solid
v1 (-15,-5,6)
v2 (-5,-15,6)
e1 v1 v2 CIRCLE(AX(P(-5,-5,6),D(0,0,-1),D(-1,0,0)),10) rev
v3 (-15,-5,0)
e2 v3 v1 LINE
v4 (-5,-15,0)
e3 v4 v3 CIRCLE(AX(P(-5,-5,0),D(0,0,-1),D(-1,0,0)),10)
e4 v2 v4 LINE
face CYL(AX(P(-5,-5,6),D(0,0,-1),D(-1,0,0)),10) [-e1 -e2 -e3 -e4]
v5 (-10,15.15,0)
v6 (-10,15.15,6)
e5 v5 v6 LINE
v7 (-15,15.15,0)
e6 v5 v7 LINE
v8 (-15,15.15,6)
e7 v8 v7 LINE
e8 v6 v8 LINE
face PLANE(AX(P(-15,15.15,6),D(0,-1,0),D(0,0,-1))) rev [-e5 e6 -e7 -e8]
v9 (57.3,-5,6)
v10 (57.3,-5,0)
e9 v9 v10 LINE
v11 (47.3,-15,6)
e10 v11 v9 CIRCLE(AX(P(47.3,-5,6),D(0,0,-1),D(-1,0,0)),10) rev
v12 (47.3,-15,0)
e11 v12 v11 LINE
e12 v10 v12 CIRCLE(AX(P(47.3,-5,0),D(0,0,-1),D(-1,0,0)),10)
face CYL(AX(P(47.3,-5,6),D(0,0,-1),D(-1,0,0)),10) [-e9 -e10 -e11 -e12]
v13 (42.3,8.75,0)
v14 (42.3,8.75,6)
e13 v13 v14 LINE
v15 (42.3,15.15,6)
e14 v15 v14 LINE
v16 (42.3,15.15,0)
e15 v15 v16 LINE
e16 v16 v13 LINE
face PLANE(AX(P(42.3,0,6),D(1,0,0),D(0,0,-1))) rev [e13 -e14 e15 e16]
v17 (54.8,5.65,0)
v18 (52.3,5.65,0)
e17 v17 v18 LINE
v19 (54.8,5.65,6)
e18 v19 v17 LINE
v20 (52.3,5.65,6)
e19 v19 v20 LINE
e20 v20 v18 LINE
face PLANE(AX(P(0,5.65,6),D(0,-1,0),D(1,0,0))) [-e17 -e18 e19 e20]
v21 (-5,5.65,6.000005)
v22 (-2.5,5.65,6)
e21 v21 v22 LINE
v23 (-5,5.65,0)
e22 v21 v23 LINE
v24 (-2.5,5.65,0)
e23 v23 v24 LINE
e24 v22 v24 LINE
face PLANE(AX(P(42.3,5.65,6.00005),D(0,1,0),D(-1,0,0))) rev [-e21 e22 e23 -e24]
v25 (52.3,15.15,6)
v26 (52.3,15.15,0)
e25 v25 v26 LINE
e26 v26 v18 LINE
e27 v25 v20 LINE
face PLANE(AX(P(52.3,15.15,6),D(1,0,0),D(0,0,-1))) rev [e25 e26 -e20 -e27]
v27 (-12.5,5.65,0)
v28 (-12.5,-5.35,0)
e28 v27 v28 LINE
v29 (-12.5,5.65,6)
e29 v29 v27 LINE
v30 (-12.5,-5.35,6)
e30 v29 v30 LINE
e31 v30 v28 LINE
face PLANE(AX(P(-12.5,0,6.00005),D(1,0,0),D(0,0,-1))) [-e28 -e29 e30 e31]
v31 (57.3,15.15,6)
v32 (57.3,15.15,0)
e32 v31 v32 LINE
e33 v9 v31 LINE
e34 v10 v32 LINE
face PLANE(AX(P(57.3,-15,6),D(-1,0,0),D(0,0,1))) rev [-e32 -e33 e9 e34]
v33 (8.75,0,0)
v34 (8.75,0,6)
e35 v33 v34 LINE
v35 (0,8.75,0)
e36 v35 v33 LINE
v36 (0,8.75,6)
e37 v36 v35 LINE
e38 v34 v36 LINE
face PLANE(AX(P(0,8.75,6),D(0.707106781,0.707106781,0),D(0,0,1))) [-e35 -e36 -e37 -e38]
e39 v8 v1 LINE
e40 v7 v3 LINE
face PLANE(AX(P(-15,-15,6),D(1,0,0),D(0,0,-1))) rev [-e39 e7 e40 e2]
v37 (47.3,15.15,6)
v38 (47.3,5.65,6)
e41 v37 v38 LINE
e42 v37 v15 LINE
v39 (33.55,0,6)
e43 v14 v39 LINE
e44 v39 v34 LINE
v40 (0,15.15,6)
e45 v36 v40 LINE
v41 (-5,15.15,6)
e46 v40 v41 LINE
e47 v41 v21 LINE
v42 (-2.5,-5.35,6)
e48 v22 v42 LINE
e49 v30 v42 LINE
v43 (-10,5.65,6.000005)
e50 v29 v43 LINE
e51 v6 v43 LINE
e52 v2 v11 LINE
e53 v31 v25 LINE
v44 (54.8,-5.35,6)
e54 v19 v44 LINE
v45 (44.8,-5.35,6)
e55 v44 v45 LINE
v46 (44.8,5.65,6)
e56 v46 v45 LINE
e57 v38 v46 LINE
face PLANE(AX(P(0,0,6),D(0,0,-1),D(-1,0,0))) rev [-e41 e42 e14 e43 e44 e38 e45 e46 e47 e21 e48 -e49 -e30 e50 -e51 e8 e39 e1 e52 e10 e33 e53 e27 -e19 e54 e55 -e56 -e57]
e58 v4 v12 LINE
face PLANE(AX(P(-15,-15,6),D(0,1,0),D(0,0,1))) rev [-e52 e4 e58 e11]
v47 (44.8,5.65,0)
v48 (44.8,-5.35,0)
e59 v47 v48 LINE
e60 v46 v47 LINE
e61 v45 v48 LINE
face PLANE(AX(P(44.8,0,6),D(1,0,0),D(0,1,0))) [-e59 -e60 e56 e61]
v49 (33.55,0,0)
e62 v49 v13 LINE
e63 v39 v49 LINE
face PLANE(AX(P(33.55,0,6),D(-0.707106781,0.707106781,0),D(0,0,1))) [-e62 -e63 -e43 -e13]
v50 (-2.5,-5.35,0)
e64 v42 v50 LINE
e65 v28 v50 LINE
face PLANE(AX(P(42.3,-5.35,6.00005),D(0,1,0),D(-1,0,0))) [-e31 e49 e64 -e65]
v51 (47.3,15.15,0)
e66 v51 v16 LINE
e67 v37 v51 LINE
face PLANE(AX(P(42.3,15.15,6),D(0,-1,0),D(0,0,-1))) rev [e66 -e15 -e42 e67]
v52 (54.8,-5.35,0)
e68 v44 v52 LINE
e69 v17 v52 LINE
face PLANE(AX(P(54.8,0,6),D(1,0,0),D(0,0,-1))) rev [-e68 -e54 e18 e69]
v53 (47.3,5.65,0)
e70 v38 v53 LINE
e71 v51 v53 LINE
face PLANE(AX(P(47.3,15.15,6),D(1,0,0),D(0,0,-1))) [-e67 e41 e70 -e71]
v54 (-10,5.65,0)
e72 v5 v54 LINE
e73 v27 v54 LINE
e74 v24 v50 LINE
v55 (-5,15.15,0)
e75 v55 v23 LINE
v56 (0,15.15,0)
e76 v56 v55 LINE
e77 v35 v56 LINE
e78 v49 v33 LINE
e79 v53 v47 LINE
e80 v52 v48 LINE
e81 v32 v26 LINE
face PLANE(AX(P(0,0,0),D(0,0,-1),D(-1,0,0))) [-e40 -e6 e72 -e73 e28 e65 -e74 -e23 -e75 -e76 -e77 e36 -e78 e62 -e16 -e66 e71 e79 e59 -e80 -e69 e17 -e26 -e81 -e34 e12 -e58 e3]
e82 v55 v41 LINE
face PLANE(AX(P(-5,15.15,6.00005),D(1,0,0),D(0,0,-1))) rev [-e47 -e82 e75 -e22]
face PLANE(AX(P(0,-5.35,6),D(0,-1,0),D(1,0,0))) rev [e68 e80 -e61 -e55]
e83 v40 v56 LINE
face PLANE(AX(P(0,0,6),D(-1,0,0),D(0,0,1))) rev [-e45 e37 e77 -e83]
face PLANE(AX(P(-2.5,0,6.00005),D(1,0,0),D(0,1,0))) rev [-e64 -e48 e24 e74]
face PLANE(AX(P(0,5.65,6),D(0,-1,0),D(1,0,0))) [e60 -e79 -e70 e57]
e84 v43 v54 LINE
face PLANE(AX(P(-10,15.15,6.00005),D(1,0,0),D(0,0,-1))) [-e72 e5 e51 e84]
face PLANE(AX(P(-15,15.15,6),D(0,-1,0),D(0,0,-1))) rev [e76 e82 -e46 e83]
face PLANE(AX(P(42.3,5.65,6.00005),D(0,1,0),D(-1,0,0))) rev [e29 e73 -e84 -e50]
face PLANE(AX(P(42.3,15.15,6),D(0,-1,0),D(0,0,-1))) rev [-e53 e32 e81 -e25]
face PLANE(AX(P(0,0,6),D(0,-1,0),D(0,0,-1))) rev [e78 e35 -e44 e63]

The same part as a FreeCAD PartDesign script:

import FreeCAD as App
import Part
import Sketcher
from FreeCAD import Vector
Q = App.Units.Quantity


def edges_at(feature, points):
    """Names of the edges that pass closest to the given points."""
    edges = feature.Shape.Edges
    near = lambda p: min(range(len(edges)), key=lambda i: edges[i].distToShape(Part.Vertex(*p))[0])
    return sorted({f"Edge{near(p) + 1}" for p in points})

doc = App.newDocument("Part")
body = doc.addObject("PartDesign::Body", "Body")

# Sketch on XY plane
sketch1 = body.newObject("Sketcher::SketchObject", "Sketch")
sketch1.AttachmentSupport = (doc.getObject("XY_Plane"), [""])
sketch1.MapMode = "FlatFace"
sketch1.addGeometry(Part.LineSegment(Vector(42, 0, 0), Vector(0, 0, 0)), False)
sketch1.addGeometry(Part.LineSegment(Vector(0, 0, 0), Vector(0, 15, 0)), False)
sketch1.addGeometry(Part.LineSegment(Vector(0, 15, 0), Vector(-15, 15, 0)), False)
sketch1.addGeometry(Part.LineSegment(Vector(-15, 15, 0), Vector(-15, -15, 0)), False)
sketch1.addGeometry(Part.LineSegment(Vector(-15, -15, 0), Vector(57, -15, 0)), False)
sketch1.addGeometry(Part.LineSegment(Vector(57, -15, 0), Vector(57, 15, 0)), False)
sketch1.addGeometry(Part.LineSegment(Vector(57, 15, 0), Vector(42, 15, 0)), False)
sketch1.addGeometry(Part.LineSegment(Vector(42, 15, 0), Vector(42, 0, 0)), False)
sketch1.addConstraint(Sketcher.Constraint("Coincident", 0, 2, 1, 1))
sketch1.addConstraint(Sketcher.Constraint("Coincident", 1, 2, 2, 1))
sketch1.addConstraint(Sketcher.Constraint("Coincident", 2, 2, 3, 1))
sketch1.addConstraint(Sketcher.Constraint("Coincident", 3, 2, 4, 1))
sketch1.addConstraint(Sketcher.Constraint("Coincident", 4, 2, 5, 1))
sketch1.addConstraint(Sketcher.Constraint("Coincident", 5, 2, 6, 1))
sketch1.addConstraint(Sketcher.Constraint("Coincident", 6, 2, 7, 1))
sketch1.addConstraint(Sketcher.Constraint("Coincident", 7, 2, 0, 1))
sketch1.addConstraint(Sketcher.Constraint("Horizontal", 0))
sketch1.addConstraint(Sketcher.Constraint("Vertical", 1))
sketch1.addConstraint(Sketcher.Constraint("Horizontal", 2))
sketch1.addConstraint(Sketcher.Constraint("Vertical", 3))
sketch1.addConstraint(Sketcher.Constraint("Horizontal", 4))
sketch1.addConstraint(Sketcher.Constraint("Vertical", 5))
sketch1.addConstraint(Sketcher.Constraint("Horizontal", 6))
sketch1.addConstraint(Sketcher.Constraint("Vertical", 7))
sketch1.addConstraint(Sketcher.Constraint("Coincident", 0, 2, -1, 1))
sketch1.addConstraint(Sketcher.Constraint("Horizontal", 2, 2, 5, 2))
sketch1.addConstraint(Sketcher.Constraint("Equal", 2, 6))
sketch1.addConstraint(Sketcher.Constraint("DistanceX", 2, 2, 2, 1, Q("15 mm")))
sketch1.addConstraint(Sketcher.Constraint("DistanceX", 0, 2, 0, 1, Q("42.3 mm")))
sketch1.addConstraint(Sketcher.Constraint("DistanceY", 3, 2, -1, 1, Q("15 mm")))
sketch1.addConstraint(Sketcher.Constraint("DistanceY", 1, 1, 1, 2, Q("15.15 mm")))
pad1 = body.newObject("PartDesign::Pad", "Pad")
pad1.Profile = sketch1
pad1.Length = 6
doc.recompute()

fillet = body.newObject("PartDesign::Fillet", "Fillet")
fillet.Base = (pad1, edges_at(pad1, [(57.3, -15, 3), (-15, -15, 3)]))
fillet.Radius = 10

# Sketch on XY plane
sketch2 = body.newObject("Sketcher::SketchObject", "Sketch001")
sketch2.AttachmentSupport = (doc.getObject("XY_Plane"), [""])
sketch2.MapMode = "FlatFace"
sketch2.addGeometry(Part.LineSegment(Vector(52.3, 15.2, 0), Vector(52.3, 5.7, 0)), False)
sketch2.addGeometry(Part.LineSegment(Vector(52.3, 5.7, 0), Vector(54.8, 5.7, 0)), False)
sketch2.addGeometry(Part.LineSegment(Vector(54.8, 5.7, 0), Vector(54.8, -5.3, 0)), False)
sketch2.addGeometry(Part.LineSegment(Vector(54.8, -5.3, 0), Vector(44.8, -5.3, 0)), False)
sketch2.addGeometry(Part.LineSegment(Vector(44.8, -5.3, 0), Vector(44.8, 5.7, 0)), False)
sketch2.addGeometry(Part.LineSegment(Vector(44.8, 5.7, 0), Vector(47.3, 5.7, 0)), False)
sketch2.addGeometry(Part.LineSegment(Vector(47.3, 5.7, 0), Vector(47.3, 15.2, 0)), False)
sketch2.addGeometry(Part.LineSegment(Vector(47.3, 15.2, 0), Vector(52.3, 15.2, 0)), False)
sketch2.addConstraint(Sketcher.Constraint("Coincident", 0, 2, 1, 1))
sketch2.addConstraint(Sketcher.Constraint("Coincident", 1, 2, 2, 1))
sketch2.addConstraint(Sketcher.Constraint("Coincident", 2, 2, 3, 1))
sketch2.addConstraint(Sketcher.Constraint("Coincident", 3, 2, 4, 1))
sketch2.addConstraint(Sketcher.Constraint("Coincident", 4, 2, 5, 1))
sketch2.addConstraint(Sketcher.Constraint("Coincident", 5, 2, 6, 1))
sketch2.addConstraint(Sketcher.Constraint("Coincident", 6, 2, 7, 1))
sketch2.addConstraint(Sketcher.Constraint("Coincident", 7, 2, 0, 1))
sketch2.addConstraint(Sketcher.Constraint("Vertical", 0))
sketch2.addConstraint(Sketcher.Constraint("Horizontal", 1))
sketch2.addConstraint(Sketcher.Constraint("Vertical", 2))
sketch2.addConstraint(Sketcher.Constraint("Horizontal", 3))
sketch2.addConstraint(Sketcher.Constraint("Vertical", 4))
sketch2.addConstraint(Sketcher.Constraint("Horizontal", 5))
sketch2.addConstraint(Sketcher.Constraint("Vertical", 6))
sketch2.addConstraint(Sketcher.Constraint("Horizontal", 7))
sketch2.addConstraint(Sketcher.Constraint("Horizontal", 1, 2, 4, 2))
sketch2.addConstraint(Sketcher.Constraint("Equal", 1, 5))
sketch2.addConstraint(Sketcher.Constraint("DistanceX", 3, 2, 3, 1, Q("10 mm")))
sketch2.addConstraint(Sketcher.Constraint("DistanceX", 7, 1, 7, 2, Q("5 mm")))
sketch2.addConstraint(Sketcher.Constraint("DistanceY", 2, 2, 2, 1, Q("11 mm")))
sketch2.addConstraint(Sketcher.Constraint("DistanceY", 0, 2, 0, 1, Q("9.5 mm")))
sketch2.addConstraint(Sketcher.Constraint("DistanceX", -1, 1, 0, 2, Q("52.3 mm")))
sketch2.addConstraint(Sketcher.Constraint("DistanceY", -1, 1, 0, 2, Q("5.65 mm")))
pocket1 = body.newObject("PartDesign::Pocket", "Pocket")
pocket1.Profile = sketch2
pocket1.Type = "ThroughAll"
pocket1.Reversed = True
doc.recompute()

datumplane = body.newObject("PartDesign::Plane", "DatumPlane")
datumplane.AttachmentSupport = (doc.getObject("YZ_Plane"), [""])
datumplane.MapMode = "FlatFace"
datumplane.AttachmentOffset = App.Placement(Vector(0, 0, 21.15), App.Rotation())
mirrored = body.newObject("PartDesign::Mirrored", "Mirrored")
mirrored.Originals = [pocket1]
mirrored.MirrorPlane = (datumplane, [""])
body.Tip = mirrored
doc.recompute()

chamfer = body.newObject("PartDesign::Chamfer", "Chamfer")
chamfer.Base = (mirrored, edges_at(mirrored, [(0, 0, 3), (42.3, 0, 3)]))
chamfer.Size = 8.75

doc.recompute()
